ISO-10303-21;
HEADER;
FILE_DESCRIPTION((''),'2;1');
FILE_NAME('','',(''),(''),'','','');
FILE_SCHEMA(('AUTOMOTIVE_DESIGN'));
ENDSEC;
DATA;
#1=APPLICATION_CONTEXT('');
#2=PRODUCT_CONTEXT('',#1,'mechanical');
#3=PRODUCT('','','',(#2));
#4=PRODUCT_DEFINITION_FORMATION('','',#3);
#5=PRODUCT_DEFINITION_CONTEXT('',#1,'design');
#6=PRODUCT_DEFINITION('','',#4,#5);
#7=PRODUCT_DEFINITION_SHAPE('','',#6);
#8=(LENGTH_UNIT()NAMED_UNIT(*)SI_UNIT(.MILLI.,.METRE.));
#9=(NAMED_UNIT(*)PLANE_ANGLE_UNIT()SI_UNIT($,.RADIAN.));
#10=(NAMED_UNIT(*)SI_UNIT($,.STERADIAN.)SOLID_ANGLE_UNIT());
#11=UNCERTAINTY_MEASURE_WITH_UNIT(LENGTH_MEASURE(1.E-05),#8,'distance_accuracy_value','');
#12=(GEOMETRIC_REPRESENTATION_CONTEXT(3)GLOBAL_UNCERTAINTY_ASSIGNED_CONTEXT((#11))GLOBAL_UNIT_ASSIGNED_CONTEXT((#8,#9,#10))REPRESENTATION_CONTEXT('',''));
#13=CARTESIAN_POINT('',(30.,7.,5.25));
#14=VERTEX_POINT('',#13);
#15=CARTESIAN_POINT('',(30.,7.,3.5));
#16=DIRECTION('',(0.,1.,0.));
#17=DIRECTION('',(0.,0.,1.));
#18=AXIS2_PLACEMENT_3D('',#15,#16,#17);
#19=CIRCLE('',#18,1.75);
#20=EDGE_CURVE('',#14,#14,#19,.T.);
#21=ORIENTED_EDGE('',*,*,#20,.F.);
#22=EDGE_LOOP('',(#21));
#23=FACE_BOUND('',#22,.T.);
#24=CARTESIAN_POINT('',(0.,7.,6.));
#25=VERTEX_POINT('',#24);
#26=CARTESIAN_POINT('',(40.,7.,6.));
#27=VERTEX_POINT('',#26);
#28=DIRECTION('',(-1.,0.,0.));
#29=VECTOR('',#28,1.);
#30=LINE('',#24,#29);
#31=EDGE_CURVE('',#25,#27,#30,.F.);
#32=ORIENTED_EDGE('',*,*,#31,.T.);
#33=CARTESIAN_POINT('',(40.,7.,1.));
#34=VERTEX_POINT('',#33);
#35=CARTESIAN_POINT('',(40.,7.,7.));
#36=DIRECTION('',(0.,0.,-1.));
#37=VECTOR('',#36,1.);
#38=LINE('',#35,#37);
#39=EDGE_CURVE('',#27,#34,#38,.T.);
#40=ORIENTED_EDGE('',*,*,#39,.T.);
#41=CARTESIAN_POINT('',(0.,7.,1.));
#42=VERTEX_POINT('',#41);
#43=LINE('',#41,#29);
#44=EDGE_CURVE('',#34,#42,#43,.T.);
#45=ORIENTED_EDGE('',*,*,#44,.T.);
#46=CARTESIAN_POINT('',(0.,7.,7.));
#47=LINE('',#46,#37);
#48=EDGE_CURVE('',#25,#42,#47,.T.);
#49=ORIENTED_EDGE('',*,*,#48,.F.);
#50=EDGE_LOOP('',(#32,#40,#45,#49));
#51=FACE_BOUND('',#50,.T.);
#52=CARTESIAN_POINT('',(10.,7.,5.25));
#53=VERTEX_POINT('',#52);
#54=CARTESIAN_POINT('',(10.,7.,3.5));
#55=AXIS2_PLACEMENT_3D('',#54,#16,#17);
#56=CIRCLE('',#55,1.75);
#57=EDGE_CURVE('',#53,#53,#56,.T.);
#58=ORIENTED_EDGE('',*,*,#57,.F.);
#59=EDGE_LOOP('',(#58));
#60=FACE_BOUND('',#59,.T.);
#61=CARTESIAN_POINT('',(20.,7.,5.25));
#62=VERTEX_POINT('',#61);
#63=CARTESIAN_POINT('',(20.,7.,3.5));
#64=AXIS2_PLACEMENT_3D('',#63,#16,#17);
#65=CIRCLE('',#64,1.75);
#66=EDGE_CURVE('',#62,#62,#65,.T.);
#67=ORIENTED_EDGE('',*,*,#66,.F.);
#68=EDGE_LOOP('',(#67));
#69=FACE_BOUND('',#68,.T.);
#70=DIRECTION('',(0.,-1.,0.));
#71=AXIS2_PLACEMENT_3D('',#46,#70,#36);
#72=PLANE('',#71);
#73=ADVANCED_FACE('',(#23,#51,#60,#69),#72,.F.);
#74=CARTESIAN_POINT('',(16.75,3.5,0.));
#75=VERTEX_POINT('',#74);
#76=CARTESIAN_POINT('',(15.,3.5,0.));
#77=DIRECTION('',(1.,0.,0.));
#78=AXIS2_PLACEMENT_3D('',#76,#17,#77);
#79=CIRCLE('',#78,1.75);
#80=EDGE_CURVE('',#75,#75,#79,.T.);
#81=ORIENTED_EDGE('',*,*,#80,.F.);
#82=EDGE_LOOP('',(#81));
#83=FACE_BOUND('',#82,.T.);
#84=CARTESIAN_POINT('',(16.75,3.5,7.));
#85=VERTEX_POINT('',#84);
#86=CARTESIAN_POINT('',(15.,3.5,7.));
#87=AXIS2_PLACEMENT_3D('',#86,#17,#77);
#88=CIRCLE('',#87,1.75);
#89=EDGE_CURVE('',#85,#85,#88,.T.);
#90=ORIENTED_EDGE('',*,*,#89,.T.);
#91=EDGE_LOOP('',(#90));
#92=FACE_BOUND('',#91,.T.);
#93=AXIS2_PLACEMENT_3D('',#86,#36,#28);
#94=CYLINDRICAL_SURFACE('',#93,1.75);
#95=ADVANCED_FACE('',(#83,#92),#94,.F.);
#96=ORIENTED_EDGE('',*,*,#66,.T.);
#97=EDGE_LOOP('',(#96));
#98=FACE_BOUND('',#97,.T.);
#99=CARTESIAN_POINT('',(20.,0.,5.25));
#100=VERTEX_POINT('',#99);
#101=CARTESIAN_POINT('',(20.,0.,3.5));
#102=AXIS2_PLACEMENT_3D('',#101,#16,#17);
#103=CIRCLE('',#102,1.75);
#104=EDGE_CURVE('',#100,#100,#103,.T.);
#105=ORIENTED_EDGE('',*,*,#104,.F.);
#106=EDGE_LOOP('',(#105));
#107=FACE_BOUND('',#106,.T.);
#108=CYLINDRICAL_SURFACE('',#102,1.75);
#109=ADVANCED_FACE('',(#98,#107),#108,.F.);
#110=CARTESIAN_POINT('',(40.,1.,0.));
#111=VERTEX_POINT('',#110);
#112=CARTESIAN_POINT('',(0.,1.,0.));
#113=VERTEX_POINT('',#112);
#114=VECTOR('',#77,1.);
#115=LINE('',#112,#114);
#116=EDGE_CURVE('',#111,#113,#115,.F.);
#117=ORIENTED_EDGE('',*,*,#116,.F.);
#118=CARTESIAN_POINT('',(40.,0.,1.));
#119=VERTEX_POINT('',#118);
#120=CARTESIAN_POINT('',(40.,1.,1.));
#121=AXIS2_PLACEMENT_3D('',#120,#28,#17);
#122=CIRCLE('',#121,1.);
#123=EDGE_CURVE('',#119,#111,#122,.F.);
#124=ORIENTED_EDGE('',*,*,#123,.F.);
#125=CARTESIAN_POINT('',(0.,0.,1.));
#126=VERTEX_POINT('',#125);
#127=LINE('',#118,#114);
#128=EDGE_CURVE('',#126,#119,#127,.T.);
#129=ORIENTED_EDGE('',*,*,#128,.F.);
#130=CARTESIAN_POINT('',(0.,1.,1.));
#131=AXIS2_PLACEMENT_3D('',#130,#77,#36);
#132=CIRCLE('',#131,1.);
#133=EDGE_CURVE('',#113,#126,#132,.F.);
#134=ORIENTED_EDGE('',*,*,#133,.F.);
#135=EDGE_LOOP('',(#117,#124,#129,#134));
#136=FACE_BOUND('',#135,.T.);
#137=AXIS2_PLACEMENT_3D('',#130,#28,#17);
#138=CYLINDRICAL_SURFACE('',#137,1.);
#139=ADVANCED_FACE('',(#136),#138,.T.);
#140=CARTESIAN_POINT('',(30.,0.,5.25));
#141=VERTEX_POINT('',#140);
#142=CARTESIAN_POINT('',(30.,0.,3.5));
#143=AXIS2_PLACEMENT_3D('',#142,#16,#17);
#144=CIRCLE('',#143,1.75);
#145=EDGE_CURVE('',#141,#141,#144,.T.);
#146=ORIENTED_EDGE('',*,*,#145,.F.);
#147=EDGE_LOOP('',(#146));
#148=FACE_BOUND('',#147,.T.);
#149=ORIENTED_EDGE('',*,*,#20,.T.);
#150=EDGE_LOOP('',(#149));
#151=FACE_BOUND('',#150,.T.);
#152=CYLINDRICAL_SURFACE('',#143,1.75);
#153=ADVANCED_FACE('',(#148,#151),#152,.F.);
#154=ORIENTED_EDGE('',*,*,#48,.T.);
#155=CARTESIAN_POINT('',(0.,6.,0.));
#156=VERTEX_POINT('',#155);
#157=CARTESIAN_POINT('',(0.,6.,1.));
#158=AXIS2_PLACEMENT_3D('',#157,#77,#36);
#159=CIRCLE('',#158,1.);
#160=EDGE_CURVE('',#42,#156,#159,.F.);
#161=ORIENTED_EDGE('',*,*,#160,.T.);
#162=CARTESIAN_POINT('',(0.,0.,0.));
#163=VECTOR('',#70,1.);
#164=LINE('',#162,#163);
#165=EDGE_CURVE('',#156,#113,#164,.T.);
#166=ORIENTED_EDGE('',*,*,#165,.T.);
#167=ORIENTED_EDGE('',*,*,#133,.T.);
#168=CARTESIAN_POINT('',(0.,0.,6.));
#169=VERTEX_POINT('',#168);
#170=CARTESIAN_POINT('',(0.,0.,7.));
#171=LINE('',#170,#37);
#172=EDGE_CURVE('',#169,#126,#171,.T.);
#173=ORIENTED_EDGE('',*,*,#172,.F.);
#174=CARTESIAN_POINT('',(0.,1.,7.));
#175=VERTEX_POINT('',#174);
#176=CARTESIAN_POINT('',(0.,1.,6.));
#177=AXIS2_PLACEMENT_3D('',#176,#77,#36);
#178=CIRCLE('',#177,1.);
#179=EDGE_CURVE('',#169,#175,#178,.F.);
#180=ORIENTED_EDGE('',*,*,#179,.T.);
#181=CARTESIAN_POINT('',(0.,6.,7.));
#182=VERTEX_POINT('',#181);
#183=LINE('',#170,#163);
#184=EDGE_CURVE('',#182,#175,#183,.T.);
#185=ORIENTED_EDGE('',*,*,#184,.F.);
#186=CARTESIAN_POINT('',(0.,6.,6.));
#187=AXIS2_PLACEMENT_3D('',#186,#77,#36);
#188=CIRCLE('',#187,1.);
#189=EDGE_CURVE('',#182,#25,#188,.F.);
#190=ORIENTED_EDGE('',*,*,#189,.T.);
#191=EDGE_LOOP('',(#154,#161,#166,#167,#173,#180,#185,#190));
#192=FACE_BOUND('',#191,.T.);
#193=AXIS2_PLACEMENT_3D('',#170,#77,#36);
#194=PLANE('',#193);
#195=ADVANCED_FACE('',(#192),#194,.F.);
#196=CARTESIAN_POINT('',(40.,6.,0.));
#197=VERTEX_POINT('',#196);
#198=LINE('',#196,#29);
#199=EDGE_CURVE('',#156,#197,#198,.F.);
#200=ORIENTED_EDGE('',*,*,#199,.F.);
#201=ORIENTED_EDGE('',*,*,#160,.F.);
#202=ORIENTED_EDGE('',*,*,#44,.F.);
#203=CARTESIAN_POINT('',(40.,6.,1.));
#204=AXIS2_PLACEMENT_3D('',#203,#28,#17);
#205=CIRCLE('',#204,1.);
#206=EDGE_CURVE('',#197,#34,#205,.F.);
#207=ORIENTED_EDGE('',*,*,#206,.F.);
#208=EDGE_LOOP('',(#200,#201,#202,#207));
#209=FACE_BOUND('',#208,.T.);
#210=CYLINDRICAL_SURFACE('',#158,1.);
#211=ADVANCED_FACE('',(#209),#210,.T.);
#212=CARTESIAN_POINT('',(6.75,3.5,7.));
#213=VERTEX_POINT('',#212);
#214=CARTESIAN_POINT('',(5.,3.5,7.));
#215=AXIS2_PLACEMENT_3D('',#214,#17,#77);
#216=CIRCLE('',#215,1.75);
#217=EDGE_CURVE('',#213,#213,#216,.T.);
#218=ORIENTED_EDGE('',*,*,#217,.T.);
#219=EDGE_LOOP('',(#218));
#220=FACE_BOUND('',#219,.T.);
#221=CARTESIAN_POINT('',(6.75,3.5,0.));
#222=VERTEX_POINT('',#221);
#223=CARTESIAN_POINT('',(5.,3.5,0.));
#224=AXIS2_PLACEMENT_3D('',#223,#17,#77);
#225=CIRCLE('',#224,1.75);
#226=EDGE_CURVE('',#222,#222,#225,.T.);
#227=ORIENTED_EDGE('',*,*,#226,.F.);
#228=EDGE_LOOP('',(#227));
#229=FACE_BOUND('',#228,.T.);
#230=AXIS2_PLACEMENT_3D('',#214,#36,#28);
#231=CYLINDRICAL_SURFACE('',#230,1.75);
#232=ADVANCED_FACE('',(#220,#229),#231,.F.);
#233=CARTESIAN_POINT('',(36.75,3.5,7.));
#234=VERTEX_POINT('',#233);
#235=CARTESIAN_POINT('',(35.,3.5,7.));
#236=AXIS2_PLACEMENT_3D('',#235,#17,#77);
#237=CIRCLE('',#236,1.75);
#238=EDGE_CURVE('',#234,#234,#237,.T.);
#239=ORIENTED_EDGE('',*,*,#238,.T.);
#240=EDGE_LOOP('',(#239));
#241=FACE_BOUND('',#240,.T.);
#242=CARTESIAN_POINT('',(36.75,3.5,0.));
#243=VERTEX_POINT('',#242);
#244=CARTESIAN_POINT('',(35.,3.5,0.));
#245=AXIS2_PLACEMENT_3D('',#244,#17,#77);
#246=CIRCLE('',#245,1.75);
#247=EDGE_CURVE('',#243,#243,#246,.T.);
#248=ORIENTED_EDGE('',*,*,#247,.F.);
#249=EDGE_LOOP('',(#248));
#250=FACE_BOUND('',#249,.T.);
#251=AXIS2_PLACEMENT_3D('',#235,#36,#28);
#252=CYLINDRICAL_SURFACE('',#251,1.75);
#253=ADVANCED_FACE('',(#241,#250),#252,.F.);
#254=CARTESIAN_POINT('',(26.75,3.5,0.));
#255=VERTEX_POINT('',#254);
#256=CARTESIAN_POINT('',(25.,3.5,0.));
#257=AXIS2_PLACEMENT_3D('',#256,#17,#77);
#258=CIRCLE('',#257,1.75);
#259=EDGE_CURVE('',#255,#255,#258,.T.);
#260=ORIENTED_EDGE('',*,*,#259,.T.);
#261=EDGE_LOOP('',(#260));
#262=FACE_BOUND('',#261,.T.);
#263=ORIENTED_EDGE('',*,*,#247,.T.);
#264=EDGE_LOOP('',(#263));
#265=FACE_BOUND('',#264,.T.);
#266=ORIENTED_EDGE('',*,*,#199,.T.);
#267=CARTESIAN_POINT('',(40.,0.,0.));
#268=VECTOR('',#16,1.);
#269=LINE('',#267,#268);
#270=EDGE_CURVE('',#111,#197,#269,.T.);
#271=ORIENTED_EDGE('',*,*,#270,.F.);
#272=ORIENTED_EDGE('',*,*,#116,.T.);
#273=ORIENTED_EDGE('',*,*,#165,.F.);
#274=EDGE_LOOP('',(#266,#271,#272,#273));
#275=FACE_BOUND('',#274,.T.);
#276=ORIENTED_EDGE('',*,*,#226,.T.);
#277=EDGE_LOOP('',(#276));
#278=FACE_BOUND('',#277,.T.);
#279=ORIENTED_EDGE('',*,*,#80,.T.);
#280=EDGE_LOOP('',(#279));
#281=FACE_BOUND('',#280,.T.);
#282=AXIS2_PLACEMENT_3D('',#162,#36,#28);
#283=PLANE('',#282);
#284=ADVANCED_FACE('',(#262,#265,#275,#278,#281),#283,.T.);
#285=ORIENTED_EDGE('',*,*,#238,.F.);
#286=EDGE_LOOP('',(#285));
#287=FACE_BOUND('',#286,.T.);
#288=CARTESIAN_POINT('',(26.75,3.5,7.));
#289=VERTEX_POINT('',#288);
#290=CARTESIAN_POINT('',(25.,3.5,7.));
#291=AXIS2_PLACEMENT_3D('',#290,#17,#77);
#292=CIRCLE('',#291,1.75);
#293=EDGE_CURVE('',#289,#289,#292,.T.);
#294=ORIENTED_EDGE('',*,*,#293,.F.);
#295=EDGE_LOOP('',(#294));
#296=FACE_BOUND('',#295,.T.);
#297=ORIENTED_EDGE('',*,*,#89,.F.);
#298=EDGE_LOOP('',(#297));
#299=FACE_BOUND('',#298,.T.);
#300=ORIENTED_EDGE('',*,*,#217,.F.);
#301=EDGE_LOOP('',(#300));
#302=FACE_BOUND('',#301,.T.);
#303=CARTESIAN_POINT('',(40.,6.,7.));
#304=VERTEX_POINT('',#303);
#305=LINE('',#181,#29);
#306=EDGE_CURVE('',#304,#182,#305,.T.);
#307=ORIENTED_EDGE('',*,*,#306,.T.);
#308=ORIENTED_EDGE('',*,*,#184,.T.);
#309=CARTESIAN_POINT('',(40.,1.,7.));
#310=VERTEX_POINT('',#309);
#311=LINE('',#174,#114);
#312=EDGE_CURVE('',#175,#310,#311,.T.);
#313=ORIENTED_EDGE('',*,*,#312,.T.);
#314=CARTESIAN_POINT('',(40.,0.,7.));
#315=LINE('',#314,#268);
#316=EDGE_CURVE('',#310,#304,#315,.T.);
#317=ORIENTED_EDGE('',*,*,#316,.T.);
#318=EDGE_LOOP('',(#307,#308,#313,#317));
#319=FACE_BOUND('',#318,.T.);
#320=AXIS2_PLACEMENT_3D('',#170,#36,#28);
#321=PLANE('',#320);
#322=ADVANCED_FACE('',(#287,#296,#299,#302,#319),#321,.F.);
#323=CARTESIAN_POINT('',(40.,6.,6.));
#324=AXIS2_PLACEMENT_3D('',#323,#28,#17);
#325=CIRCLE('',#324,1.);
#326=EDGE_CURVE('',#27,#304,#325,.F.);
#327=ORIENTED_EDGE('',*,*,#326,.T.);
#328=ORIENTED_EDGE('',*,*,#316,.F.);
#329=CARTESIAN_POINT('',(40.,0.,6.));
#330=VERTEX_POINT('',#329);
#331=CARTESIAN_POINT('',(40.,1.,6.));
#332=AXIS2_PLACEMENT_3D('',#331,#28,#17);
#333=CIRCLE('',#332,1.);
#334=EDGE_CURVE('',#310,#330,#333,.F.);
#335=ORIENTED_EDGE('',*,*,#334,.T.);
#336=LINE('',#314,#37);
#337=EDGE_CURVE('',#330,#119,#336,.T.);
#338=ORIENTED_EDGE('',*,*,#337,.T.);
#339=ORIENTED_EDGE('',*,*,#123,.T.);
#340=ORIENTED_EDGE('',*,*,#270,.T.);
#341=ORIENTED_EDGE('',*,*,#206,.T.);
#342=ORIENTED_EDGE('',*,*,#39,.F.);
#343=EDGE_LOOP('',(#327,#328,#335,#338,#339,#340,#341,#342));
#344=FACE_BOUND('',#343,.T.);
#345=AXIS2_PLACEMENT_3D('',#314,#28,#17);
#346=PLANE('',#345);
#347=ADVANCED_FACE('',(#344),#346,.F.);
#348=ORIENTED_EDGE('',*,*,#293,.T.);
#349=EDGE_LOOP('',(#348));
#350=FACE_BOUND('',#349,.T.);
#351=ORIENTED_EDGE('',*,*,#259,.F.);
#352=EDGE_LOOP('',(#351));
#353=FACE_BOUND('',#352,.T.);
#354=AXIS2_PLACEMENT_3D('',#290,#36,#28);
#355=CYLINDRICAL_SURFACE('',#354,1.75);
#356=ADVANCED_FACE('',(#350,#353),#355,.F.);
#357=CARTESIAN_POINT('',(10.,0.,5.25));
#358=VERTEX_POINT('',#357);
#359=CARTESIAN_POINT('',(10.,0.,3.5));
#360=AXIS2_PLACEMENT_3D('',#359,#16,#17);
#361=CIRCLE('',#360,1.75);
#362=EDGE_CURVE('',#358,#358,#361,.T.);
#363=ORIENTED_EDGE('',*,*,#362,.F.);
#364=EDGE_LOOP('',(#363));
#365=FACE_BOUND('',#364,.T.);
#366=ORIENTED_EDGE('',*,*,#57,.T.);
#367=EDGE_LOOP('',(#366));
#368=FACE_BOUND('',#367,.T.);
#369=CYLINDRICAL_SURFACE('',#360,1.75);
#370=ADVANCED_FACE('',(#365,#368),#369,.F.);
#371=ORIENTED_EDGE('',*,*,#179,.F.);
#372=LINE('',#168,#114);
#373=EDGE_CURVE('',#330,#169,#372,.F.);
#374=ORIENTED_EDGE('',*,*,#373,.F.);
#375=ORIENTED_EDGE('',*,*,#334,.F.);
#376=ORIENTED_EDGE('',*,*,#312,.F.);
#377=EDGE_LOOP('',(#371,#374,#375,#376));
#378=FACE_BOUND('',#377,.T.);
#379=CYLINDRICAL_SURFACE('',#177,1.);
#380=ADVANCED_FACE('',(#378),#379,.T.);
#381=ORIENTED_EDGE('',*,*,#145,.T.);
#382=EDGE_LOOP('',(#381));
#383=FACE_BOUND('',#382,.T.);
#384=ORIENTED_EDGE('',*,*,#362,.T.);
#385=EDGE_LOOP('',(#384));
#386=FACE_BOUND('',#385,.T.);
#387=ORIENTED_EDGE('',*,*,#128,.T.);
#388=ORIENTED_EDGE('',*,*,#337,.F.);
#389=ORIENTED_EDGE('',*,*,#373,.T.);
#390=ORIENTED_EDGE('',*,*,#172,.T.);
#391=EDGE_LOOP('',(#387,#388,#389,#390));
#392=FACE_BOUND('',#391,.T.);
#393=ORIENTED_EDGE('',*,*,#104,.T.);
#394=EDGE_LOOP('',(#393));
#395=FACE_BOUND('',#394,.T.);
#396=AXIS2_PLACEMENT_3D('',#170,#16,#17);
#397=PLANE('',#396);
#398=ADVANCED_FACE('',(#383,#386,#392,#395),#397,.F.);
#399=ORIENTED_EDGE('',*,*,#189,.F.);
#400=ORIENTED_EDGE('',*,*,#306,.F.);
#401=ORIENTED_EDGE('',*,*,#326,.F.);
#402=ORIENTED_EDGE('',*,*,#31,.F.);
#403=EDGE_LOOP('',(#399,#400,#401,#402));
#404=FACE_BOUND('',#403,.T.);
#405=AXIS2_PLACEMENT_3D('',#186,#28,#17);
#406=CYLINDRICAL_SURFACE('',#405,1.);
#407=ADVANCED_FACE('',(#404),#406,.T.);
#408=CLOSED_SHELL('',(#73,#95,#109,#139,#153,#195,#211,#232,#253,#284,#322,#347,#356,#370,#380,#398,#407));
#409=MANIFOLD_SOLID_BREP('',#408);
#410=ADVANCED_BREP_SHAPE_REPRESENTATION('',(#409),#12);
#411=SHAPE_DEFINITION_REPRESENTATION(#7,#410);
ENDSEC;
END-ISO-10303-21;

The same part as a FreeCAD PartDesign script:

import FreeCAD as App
import Part
import Sketcher

V = App.Vector
Q = App.Units.Quantity


def edges_at(feature, points):
    """Names of the edges that pass closest to the given points."""
    edges = feature.Shape.Edges
    near = lambda p: min(range(len(edges)), key=lambda i: edges[i].distToShape(Part.Vertex(*p))[0])
    return sorted({f"Edge{near(p) + 1}" for p in points})

doc = App.newDocument("Part")
body = doc.addObject("PartDesign::Body", "Body")

# Sketch on XY plane
sketch1 = body.newObject("Sketcher::SketchObject", "Sketch")
sketch1.AttachmentSupport = (doc.getObject("XY_Plane"), [""])
sketch1.MapMode = "FlatFace"
sketch1.addGeometry(Part.LineSegment(V(0, 7, 0), V(0, 0, 0)), False)
sketch1.addGeometry(Part.LineSegment(V(0, 0, 0), V(40, 0, 0)), False)
sketch1.addGeometry(Part.LineSegment(V(40, 0, 0), V(40, 7, 0)), False)
sketch1.addGeometry(Part.LineSegment(V(40, 7, 0), V(0, 7, 0)), False)
sketch1.addGeometry(Part.Circle(V(5, 3.5, 0), V(0, 0, 1), 1.8), False)
sketch1.addGeometry(Part.Circle(V(15, 3.5, 0), V(0, 0, 1), 1.8), False)
sketch1.addGeometry(Part.Circle(V(25, 3.5, 0), V(0, 0, 1), 1.8), False)
sketch1.addGeometry(Part.Circle(V(35, 3.5, 0), V(0, 0, 1), 1.8), False)
sketch1.addConstraint(Sketcher.Constraint("Coincident", 0, 2, 1, 1))
sketch1.addConstraint(Sketcher.Constraint("Coincident", 1, 2, 2, 1))
sketch1.addConstraint(Sketcher.Constraint("Coincident", 2, 2, 3, 1))
sketch1.addConstraint(Sketcher.Constraint("Coincident", 3, 2, 0, 1))
sketch1.addConstraint(Sketcher.Constraint("Vertical", 0))
sketch1.addConstraint(Sketcher.Constraint("Horizontal", 1))
sketch1.addConstraint(Sketcher.Constraint("Vertical", 2))
sketch1.addConstraint(Sketcher.Constraint("Horizontal", 3))
sketch1.addConstraint(Sketcher.Constraint("Coincident", 0, 2, -1, 1))
sketch1.addConstraint(Sketcher.Constraint("Equal", 4, 5))
sketch1.addConstraint(Sketcher.Constraint("Equal", 5, 6))
sketch1.addConstraint(Sketcher.Constraint("Equal", 6, 7))
sketch1.addConstraint(Sketcher.Constraint("Horizontal", 4, 3, 5, 3))
sketch1.addConstraint(Sketcher.Constraint("Horizontal", 5, 3, 6, 3))
sketch1.addConstraint(Sketcher.Constraint("Horizontal", 6, 3, 7, 3))
sketch1.addConstraint(Sketcher.Constraint("Diameter", 4, Q("3.5 mm")))
sketch1.addConstraint(Sketcher.Constraint("DistanceX", 1, 1, 1, 2, Q("40 mm")))
sketch1.addConstraint(Sketcher.Constraint("DistanceY", 0, 2, 0, 1, Q("7 mm")))
sketch1.addConstraint(Sketcher.Constraint("DistanceX", -1, 1, 4, 3, Q("5 mm")))
sketch1.addConstraint(Sketcher.Constraint("DistanceX", -1, 1, 5, 3, Q("15 mm")))
sketch1.addConstraint(Sketcher.Constraint("DistanceX", -1, 1, 6, 3, Q("25 mm")))
sketch1.addConstraint(Sketcher.Constraint("DistanceX", -1, 1, 7, 3, Q("35 mm")))
sketch1.addConstraint(Sketcher.Constraint("DistanceY", -1, 1, 4, 3, Q("3.5 mm")))
pad1 = body.newObject("PartDesign::Pad", "Pad")
pad1.Profile = sketch1
pad1.Length = 7

# Sketch on XZ plane
sketch2 = body.newObject("Sketcher::SketchObject", "Sketch001")
sketch2.AttachmentSupport = (doc.getObject("XZ_Plane"), [""])
sketch2.MapMode = "FlatFace"
sketch2.AttachmentOffset = App.Placement(V(0, 0, -7), App.Rotation())
sketch2.addGeometry(Part.Circle(V(20, 3.5, 0), V(0, 0, 1), 1.8), False)
sketch2.addGeometry(Part.Circle(V(30, 3.5, 0), V(0, 0, 1), 1.8), False)
sketch2.addGeometry(Part.Circle(V(10, 3.5, 0), V(0, 0, 1), 1.8), False)
sketch2.addConstraint(Sketcher.Constraint("Equal", 0, 1))
sketch2.addConstraint(Sketcher.Constraint("Equal", 1, 2))
sketch2.addConstraint(Sketcher.Constraint("Horizontal", 0, 3, 1, 3))
sketch2.addConstraint(Sketcher.Constraint("Horizontal", 1, 3, 2, 3))
sketch2.addConstraint(Sketcher.Constraint("Diameter", 0, Q("3.5 mm")))
sketch2.addConstraint(Sketcher.Constraint("DistanceX", -1, 1, 0, 3, Q("20 mm")))
sketch2.addConstraint(Sketcher.Constraint("DistanceX", -1, 1, 1, 3, Q("30 mm")))
sketch2.addConstraint(Sketcher.Constraint("DistanceX", -1, 1, 2, 3, Q("10 mm")))
sketch2.addConstraint(Sketcher.Constraint("DistanceY", -1, 1, 0, 3, Q("3.5 mm")))
pocket1 = body.newObject("PartDesign::Pocket", "Pocket")
pocket1.Profile = sketch2
pocket1.Length = 7
pocket1.Reversed = True
doc.recompute()

fillet = body.newObject("PartDesign::Fillet", "Fillet")
fillet.Base = (pocket1, edges_at(pocket1, [
    (20, 7, 7),
    (20, 7, 0),
    (20, 0, 0),
    (20, 0, 7),
]))
fillet.Radius = 1

doc.recompute()
